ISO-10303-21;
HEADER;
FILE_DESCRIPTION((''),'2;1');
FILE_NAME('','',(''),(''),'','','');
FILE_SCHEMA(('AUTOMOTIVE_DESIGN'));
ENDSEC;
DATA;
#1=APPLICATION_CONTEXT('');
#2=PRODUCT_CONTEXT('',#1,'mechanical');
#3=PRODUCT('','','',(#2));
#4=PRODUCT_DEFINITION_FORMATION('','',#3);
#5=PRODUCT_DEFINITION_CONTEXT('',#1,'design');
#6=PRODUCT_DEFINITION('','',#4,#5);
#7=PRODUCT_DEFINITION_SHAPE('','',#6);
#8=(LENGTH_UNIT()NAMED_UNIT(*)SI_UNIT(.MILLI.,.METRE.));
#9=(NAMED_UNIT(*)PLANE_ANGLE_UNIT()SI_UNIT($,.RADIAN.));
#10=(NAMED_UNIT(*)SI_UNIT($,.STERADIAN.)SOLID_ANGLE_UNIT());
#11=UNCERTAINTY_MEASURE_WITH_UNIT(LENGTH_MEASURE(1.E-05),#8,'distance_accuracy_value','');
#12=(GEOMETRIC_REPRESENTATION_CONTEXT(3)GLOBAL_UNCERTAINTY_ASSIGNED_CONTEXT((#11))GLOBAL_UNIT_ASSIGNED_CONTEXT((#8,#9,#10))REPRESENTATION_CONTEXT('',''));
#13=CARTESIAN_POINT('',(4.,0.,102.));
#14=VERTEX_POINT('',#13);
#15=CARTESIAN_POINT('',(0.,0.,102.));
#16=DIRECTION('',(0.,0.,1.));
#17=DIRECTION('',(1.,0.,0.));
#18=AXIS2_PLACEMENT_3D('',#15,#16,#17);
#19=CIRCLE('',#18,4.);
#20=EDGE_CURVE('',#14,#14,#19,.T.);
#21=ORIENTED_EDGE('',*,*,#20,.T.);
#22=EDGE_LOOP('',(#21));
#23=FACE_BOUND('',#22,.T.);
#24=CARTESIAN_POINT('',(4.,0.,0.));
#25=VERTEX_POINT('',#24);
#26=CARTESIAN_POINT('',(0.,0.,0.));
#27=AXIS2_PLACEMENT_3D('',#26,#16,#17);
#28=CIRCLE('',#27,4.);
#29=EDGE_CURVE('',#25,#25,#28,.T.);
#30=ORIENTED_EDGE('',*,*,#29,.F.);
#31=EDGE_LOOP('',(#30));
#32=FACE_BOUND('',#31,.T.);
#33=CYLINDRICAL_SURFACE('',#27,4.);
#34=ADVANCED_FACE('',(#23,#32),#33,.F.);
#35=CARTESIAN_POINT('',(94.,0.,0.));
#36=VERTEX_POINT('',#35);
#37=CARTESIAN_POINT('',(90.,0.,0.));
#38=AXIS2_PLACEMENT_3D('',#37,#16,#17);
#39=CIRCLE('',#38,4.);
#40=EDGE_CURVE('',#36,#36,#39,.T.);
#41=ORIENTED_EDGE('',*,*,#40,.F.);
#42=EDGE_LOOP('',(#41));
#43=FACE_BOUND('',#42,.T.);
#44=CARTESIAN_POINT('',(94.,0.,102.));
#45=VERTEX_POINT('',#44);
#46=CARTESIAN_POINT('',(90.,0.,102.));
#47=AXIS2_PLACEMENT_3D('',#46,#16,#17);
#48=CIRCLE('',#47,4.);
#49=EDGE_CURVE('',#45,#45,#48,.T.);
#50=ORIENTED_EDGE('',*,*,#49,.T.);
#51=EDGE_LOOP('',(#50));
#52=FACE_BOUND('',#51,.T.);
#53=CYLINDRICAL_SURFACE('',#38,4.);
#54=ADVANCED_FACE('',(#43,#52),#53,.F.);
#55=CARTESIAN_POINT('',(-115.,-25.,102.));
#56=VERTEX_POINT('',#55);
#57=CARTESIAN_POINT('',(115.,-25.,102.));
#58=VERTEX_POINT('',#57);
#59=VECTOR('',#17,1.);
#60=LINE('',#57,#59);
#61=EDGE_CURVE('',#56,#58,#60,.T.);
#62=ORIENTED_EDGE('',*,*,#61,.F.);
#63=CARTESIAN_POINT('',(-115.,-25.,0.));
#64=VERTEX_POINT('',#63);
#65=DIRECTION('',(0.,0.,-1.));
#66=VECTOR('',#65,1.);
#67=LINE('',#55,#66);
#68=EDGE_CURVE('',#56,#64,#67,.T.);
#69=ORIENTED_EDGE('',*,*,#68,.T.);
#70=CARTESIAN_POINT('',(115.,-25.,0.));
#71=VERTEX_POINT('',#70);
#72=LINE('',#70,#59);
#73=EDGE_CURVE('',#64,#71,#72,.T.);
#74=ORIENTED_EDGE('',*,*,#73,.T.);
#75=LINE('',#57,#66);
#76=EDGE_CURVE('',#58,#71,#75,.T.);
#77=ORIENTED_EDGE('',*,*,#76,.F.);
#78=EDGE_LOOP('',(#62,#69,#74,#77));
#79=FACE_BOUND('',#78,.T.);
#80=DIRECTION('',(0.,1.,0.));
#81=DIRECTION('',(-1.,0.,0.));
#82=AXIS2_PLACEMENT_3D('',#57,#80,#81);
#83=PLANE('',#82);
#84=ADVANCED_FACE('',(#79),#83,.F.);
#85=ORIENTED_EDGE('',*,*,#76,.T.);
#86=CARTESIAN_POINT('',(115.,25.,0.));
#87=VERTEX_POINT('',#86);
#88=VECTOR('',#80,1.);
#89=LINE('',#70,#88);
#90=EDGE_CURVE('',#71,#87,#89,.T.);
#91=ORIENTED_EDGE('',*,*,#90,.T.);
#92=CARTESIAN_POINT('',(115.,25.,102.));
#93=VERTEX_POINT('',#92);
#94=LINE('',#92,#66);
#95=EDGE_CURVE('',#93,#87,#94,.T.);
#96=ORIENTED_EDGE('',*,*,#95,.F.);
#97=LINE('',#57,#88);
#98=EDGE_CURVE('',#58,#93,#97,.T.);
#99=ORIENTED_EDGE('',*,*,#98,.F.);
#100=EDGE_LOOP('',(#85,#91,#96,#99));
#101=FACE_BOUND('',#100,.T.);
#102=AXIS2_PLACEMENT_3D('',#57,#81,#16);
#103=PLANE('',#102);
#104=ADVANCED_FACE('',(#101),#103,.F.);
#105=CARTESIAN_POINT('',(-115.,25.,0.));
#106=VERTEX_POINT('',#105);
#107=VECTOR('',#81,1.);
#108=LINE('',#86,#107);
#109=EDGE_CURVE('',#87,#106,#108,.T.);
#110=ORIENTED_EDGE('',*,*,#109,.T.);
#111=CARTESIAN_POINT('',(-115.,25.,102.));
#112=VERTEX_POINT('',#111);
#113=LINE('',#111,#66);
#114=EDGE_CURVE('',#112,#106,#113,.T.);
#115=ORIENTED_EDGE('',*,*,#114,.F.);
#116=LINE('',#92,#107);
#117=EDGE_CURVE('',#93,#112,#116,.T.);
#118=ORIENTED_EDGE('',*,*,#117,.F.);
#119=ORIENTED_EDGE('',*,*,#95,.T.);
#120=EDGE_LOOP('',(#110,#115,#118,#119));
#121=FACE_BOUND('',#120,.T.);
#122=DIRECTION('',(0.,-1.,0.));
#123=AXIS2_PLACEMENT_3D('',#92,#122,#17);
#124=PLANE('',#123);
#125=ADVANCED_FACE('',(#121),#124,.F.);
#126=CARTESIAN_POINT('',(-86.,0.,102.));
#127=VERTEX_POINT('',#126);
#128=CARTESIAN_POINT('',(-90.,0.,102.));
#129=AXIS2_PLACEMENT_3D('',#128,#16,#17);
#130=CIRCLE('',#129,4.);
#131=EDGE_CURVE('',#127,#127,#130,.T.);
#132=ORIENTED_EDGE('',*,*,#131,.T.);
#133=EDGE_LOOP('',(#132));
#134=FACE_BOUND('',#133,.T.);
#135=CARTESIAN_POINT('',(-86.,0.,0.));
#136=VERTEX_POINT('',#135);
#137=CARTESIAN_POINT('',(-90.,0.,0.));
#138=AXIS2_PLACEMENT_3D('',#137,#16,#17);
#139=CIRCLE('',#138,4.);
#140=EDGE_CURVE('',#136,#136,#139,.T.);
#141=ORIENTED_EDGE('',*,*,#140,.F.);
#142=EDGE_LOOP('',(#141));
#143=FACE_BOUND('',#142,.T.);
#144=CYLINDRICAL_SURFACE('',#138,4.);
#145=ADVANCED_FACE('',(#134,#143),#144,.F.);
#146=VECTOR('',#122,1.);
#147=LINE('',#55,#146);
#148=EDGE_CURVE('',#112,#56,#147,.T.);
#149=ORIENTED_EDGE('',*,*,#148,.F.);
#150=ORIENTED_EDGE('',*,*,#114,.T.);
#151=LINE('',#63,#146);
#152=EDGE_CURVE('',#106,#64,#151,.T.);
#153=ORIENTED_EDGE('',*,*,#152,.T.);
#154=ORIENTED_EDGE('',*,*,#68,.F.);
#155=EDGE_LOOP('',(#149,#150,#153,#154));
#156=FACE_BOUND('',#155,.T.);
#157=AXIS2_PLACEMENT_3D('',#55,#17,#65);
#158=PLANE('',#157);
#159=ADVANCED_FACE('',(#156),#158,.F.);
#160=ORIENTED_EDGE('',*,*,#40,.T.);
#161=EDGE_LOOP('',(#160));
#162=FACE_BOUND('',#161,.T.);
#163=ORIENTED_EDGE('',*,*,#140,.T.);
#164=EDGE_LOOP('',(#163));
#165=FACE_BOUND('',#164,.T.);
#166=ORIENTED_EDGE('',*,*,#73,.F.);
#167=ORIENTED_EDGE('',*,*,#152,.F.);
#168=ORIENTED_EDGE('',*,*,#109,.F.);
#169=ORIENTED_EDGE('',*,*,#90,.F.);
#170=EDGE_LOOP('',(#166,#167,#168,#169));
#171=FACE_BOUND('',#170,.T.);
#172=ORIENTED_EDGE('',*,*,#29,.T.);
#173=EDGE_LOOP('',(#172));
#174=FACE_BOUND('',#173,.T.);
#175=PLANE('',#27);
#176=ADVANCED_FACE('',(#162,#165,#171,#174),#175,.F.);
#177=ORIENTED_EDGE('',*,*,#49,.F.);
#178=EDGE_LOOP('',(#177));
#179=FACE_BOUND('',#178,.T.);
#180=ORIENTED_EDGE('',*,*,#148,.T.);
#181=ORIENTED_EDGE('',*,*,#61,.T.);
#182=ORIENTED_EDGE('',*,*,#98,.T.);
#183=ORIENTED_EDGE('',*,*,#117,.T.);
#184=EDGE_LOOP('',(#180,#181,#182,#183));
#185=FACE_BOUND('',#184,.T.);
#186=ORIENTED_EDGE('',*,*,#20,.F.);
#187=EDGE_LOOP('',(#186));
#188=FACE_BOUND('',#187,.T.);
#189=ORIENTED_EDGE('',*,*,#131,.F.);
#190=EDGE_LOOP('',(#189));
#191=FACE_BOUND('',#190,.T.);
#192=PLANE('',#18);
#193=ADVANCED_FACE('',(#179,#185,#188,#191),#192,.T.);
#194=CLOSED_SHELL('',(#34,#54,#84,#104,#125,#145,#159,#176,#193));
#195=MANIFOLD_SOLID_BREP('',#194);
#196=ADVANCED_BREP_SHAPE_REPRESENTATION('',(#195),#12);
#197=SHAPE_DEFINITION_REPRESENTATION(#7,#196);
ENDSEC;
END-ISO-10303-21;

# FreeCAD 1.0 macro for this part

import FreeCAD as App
import Part
import Sketcher
Q = App.Units.Quantity


def add_polygon(sketch, points):
    """Adds a closed chain of lines whose ends are joined by coincident constraints."""
    first, n = sketch.GeometryCount, len(points)
    for a, b in zip(points, points[1:] + points[:1]):
        sketch.addGeometry(Part.LineSegment(App.Vector(*a, 0), App.Vector(*b, 0)), False)
    for i in range(n):
        sketch.addConstraint(Sketcher.Constraint("Coincident", first + i, 2, first + (i + 1) % n, 1))

doc = App.newDocument("Part")
body = doc.addObject("PartDesign::Body", "Body")

sketch1 = body.newObject("Sketcher::SketchObject", "Sketch")
sketch1.AttachmentSupport = (doc.getObject("XY_Plane"), [""])
sketch1.MapMode = "FlatFace"
add_polygon(sketch1, [(-115, 25), (-115, -25), (115, -25), (115, 25)])
sketch1.addConstraint([
    Sketcher.Constraint("Vertical", 0),
    Sketcher.Constraint("Horizontal", 1),
    Sketcher.Constraint("Vertical", 2),
    Sketcher.Constraint("Horizontal", 3),
    Sketcher.Constraint("Symmetric", 0, 2, 2, 2, -1, 1),
    Sketcher.Constraint("DistanceX", 1, 1, 1, 2, Q("230 mm")),
    Sketcher.Constraint("DistanceY", 0, 2, 0, 1, Q("50 mm")),
])
pad1 = body.newObject("PartDesign::Pad", "Pad")
pad1.Profile = sketch1
pad1.Length = 102

sketch2 = body.newObject("Sketcher::SketchObject", "Sketch001")
sketch2.AttachmentSupport = (doc.getObject("XY_Plane"), [""])
sketch2.MapMode = "FlatFace"
sketch2.AttachmentOffset = App.Placement(App.Vector(0, 0, 102), App.Rotation())
sketch2.addGeometry([
    Part.Circle(App.Vector(0, 0, 0), App.Vector(0, 0, 1), 4),
    Part.Circle(App.Vector(90, 0, 0), App.Vector(0, 0, 1), 4),
    Part.Circle(App.Vector(-90, 0, 0), App.Vector(0, 0, 1), 4),
], False)
sketch2.addConstraint([
    Sketcher.Constraint("Coincident", 0, 3, -1, 1),
    Sketcher.Constraint("Equal", 0, 1),
    Sketcher.Constraint("Equal", 1, 2),
    Sketcher.Constraint("Symmetric", 1, 3, 2, 3, -1, 1),
    Sketcher.Constraint("PointOnObject", 1, 3, -1),
    Sketcher.Constraint("Diameter", 0, Q("8 mm")),
    Sketcher.Constraint("DistanceX", -1, 1, 1, 3, Q("90 mm")),
])
pocket1 = body.newObject("PartDesign::Pocket", "Pocket")
pocket1.Profile = sketch2
pocket1.Type = "ThroughAll"

doc.recompute()
